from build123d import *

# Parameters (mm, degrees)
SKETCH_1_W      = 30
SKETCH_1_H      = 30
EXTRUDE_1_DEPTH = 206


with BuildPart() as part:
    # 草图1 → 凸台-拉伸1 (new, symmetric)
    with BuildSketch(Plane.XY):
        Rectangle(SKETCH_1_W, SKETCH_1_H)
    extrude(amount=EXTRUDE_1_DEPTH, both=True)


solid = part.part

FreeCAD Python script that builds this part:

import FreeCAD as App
import Part
import Sketcher
Q = App.Units.Quantity

doc = App.newDocument("Part")
params = doc.addObject("Spreadsheet::Sheet", "Params")
for row, (alias, value) in enumerate([
    ("sketch1_width", "30 mm"),
    ("pad1_length", "412 mm"),
], start=1):
    params.set(f"A{row}", alias)
    params.set(f"B{row}", "=" + value)
    params.setAlias(f"B{row}", alias)

body = doc.addObject("PartDesign::Body", "Body")

sketch1 = doc.addObject("Sketcher::SketchObject", "Sketch")
body.addObject(sketch1)
sketch1.AttachmentSupport = (doc.XY_Plane, [""])
sketch1.MapMode = "FlatFace"
sketch1.addGeometry([
    Part.LineSegment(App.Vector(-15, 15, 0), App.Vector(-15, -15, 0)),
    Part.LineSegment(App.Vector(-15, -15, 0), App.Vector(15, -15, 0)),
    Part.LineSegment(App.Vector(15, -15, 0), App.Vector(15, 15, 0)),
    Part.LineSegment(App.Vector(15, 15, 0), App.Vector(-15, 15, 0)),
], False)
sketch1.addConstraint([
    Sketcher.Constraint("Coincident", 0, 2, 1, 1),
    Sketcher.Constraint("Coincident", 1, 2, 2, 1),
    Sketcher.Constraint("Coincident", 2, 2, 3, 1),
    Sketcher.Constraint("Coincident", 3, 2, 0, 1),
    Sketcher.Constraint("Vertical", 0),
    Sketcher.Constraint("Horizontal", 1),
    Sketcher.Constraint("Vertical", 2),
    Sketcher.Constraint("Horizontal", 3),
    Sketcher.Constraint("Symmetric", 0, 2, 2, 2, -1, 1),
    Sketcher.Constraint("Equal", 3, 0),
    Sketcher.Constraint("DistanceX", 1, 1, 1, 2, Q("30 mm")),
])
sketch1.setExpression("Constraints[10]", "Params.sketch1_width")
pad1 = doc.addObject("PartDesign::Pad", "Pad")
body.addObject(pad1)
pad1.Profile = sketch1
pad1.setExpression("Length", "Params.pad1_length")
pad1.Midplane = True

doc.recompute()
